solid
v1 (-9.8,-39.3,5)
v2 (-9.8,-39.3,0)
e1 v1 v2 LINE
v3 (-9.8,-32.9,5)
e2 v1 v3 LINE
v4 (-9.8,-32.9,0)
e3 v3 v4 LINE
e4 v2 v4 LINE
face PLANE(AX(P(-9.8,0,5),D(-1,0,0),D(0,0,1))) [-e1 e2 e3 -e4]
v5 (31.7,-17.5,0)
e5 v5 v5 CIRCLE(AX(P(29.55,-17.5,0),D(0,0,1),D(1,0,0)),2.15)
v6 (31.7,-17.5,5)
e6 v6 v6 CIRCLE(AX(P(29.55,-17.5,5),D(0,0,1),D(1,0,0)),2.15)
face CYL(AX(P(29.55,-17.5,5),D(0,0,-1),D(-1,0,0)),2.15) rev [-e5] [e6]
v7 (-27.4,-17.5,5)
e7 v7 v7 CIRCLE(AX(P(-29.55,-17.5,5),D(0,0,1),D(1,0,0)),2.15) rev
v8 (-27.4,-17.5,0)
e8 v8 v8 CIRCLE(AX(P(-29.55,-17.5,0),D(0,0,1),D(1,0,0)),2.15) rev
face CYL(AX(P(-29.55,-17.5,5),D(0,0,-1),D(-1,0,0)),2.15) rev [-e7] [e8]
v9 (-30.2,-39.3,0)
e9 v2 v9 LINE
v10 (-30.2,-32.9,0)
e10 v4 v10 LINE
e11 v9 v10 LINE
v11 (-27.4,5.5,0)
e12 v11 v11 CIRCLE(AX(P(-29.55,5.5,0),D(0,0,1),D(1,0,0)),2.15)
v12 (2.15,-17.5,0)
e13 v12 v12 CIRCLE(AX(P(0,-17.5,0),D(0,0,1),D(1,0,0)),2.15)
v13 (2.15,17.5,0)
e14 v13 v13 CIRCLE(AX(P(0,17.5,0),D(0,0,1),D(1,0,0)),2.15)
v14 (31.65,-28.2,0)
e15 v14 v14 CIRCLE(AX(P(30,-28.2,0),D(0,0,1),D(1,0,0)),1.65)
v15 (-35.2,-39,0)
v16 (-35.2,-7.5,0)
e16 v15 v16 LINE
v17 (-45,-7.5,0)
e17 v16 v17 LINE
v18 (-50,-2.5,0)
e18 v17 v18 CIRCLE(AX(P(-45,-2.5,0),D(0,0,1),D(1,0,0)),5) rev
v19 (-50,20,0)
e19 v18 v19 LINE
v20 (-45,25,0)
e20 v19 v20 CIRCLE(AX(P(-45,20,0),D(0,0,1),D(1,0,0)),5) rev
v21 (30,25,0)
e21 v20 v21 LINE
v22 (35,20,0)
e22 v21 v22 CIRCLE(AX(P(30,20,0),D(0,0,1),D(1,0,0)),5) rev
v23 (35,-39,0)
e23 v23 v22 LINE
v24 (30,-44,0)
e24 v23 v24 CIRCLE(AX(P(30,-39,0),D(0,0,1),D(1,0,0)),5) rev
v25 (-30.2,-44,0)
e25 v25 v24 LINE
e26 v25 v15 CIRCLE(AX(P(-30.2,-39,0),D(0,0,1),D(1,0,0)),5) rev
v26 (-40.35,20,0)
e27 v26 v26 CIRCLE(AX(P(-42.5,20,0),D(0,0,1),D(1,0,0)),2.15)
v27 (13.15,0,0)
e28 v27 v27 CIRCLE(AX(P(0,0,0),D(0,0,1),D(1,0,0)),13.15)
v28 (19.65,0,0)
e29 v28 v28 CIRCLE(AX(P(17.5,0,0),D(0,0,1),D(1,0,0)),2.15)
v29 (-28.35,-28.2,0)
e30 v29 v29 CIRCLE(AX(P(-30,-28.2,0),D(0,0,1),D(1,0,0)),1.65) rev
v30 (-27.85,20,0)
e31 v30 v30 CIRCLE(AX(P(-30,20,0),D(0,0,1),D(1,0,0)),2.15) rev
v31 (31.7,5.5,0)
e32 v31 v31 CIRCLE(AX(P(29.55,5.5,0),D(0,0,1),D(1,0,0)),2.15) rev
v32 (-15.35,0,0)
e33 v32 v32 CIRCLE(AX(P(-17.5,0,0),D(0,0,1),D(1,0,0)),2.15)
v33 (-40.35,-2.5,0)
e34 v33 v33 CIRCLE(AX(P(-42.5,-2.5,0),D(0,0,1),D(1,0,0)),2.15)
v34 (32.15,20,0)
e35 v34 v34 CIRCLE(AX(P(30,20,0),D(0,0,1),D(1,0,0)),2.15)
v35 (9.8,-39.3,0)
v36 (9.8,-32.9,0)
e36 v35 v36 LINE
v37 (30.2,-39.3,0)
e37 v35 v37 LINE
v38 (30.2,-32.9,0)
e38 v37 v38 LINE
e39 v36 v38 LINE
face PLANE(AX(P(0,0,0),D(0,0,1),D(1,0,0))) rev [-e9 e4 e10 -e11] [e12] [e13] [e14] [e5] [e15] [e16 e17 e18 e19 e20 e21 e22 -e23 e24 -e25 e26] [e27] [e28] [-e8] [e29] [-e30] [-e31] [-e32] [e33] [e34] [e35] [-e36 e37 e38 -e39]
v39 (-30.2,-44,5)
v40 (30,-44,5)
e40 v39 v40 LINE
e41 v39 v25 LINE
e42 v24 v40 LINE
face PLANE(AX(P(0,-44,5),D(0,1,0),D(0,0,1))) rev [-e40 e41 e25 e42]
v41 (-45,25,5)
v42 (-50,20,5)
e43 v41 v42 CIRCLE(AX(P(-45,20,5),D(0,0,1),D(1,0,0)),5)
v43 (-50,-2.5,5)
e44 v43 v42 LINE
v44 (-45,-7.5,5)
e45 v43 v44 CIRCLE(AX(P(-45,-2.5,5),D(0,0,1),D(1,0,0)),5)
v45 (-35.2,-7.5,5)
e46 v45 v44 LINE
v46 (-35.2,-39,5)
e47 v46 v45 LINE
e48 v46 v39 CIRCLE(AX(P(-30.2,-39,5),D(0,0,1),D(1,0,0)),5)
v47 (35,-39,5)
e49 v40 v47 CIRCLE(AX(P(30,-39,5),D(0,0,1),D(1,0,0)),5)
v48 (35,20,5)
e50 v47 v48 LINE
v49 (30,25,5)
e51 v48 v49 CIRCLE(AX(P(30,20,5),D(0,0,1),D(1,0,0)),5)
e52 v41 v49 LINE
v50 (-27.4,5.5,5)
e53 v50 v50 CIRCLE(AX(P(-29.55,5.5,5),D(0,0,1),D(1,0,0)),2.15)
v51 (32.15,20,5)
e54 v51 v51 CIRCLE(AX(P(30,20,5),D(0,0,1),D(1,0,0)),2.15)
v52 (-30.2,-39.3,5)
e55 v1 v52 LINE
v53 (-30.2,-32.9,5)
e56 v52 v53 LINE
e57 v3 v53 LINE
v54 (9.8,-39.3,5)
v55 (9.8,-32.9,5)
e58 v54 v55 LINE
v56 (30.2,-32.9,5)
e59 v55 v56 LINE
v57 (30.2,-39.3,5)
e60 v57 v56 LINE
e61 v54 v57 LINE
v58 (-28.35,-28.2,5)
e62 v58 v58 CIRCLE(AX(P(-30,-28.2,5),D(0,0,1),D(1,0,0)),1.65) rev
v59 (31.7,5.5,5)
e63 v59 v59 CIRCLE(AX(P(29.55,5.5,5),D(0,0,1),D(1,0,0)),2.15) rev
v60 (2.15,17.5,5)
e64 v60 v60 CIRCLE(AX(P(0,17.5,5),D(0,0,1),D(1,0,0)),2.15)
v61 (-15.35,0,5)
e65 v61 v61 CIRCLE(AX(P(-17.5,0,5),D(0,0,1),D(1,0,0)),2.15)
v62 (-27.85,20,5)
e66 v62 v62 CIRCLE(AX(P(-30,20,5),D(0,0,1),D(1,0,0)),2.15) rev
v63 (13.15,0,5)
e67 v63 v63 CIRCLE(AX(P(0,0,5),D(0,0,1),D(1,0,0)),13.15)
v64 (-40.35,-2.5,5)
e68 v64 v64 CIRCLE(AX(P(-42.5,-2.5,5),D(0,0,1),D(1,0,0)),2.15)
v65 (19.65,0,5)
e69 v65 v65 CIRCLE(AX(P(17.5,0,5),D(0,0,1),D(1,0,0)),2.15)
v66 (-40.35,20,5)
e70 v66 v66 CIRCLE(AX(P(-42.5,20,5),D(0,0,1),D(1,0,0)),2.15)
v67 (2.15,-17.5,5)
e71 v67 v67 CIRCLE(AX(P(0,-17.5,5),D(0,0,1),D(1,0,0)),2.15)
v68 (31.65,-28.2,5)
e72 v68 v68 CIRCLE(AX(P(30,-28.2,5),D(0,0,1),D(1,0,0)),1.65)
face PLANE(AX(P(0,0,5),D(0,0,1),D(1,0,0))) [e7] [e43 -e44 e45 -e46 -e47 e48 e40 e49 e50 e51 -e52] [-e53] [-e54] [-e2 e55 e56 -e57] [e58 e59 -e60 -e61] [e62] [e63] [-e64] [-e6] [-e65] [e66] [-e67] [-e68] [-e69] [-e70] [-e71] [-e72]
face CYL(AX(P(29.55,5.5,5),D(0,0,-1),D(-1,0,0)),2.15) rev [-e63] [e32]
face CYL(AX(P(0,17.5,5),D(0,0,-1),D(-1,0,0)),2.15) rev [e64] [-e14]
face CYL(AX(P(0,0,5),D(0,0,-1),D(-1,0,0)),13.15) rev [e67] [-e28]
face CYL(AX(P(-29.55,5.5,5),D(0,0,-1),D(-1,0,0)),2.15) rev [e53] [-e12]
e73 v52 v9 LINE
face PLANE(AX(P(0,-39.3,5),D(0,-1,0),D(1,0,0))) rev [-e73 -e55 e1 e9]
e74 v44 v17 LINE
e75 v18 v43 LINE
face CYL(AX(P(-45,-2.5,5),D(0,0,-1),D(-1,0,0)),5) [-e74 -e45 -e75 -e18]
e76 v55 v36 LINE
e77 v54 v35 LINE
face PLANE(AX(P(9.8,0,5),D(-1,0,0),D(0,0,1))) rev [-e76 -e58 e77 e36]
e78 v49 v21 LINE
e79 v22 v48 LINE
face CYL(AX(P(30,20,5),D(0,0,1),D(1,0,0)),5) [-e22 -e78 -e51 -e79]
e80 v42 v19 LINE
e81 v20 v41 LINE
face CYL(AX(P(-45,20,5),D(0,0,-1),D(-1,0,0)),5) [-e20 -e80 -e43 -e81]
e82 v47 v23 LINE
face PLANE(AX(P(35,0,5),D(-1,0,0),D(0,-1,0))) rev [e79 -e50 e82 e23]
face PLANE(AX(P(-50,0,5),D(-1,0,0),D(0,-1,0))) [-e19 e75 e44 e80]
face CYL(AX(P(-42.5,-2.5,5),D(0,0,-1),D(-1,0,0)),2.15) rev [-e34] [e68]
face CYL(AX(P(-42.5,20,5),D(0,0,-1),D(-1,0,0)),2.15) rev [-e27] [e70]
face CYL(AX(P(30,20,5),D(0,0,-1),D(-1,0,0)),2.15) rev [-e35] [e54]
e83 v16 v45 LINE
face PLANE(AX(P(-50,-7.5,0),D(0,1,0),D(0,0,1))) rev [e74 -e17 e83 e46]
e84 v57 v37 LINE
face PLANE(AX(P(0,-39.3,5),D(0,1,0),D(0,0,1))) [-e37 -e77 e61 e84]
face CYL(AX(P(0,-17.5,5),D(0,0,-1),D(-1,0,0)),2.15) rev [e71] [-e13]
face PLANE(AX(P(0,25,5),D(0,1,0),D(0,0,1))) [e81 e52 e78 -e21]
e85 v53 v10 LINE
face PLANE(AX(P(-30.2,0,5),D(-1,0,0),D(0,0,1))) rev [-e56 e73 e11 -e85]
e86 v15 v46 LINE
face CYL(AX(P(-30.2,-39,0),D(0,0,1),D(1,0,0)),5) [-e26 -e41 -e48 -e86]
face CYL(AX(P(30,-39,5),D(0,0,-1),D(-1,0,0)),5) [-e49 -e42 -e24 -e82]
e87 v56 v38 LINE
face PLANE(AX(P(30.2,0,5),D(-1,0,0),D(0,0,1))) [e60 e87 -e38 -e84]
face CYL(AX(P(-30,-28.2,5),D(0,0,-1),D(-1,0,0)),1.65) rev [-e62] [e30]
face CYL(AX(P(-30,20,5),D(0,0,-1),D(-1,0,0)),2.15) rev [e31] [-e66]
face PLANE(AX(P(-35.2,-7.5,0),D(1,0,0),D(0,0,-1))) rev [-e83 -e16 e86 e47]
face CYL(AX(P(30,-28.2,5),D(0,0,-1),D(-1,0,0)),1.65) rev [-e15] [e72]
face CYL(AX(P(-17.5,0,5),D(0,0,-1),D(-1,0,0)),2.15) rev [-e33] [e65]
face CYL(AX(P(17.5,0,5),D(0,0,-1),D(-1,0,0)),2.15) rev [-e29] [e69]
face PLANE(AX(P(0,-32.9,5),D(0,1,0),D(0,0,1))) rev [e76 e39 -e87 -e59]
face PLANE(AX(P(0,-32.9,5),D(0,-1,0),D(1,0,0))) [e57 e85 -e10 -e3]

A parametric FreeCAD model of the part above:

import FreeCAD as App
import Part
import Sketcher
from FreeCAD import Vector
Q = App.Units.Quantity


def edges_at(feature, points):
    """Names of the edges that pass closest to the given points."""
    edges = feature.Shape.Edges
    near = lambda p: min(range(len(edges)), key=lambda i: edges[i].distToShape(Part.Vertex(*p))[0])
    return sorted({f"Edge{near(p) + 1}" for p in points})

doc = App.newDocument("Part")
body = doc.addObject("PartDesign::Body", "Body")

# Sketch on XY plane
sketch1 = doc.addObject("Sketcher::SketchObject", "Sketch")
body.addObject(sketch1)
sketch1.AttachmentSupport = (doc.XY_Plane, [""])
sketch1.MapMode = "FlatFace"
sketch1.addGeometry(Part.LineSegment(Vector(35, -44, 0), Vector(35, 25, 0)), False)
sketch1.addGeometry(Part.LineSegment(Vector(35, 25, 0), Vector(-50, 25, 0)), False)
sketch1.addGeometry(Part.LineSegment(Vector(-50, 25, 0), Vector(-50, -44, 0)), False)
sketch1.addGeometry(Part.LineSegment(Vector(-50, -44, 0), Vector(35, -44, 0)), False)
sketch1.addGeometry(Part.LineSegment(Vector(-9.8, -39.3, 0), Vector(-30.2, -39.3, 0)), False)
sketch1.addGeometry(Part.LineSegment(Vector(-30.2, -39.3, 0), Vector(-30.2, -32.9, 0)), False)
sketch1.addGeometry(Part.LineSegment(Vector(-30.2, -32.9, 0), Vector(-9.8, -32.9, 0)), False)
sketch1.addGeometry(Part.LineSegment(Vector(-9.8, -32.9, 0), Vector(-9.8, -39.3, 0)), False)
sketch1.addGeometry(Part.Circle(Vector(-30, -28.2, 0), Vector(0, 0, 1), 1.6), False)
sketch1.addGeometry(Part.Circle(Vector(-29.6, -17.5, 0), Vector(0, 0, 1), 2.1), False)
sketch1.addGeometry(Part.LineSegment(Vector(30.2, -39.3, 0), Vector(9.8, -39.3, 0)), False)
sketch1.addGeometry(Part.LineSegment(Vector(9.8, -39.3, 0), Vector(9.8, -32.9, 0)), False)
sketch1.addGeometry(Part.LineSegment(Vector(9.8, -32.9, 0), Vector(30.2, -32.9, 0)), False)
sketch1.addGeometry(Part.LineSegment(Vector(30.2, -32.9, 0), Vector(30.2, -39.3, 0)), False)
sketch1.addGeometry(Part.Circle(Vector(30, -28.2, 0), Vector(0, 0, 1), 1.6), False)
sketch1.addGeometry(Part.Circle(Vector(0, -17.5, 0), Vector(0, 0, 1), 2.1), False)
sketch1.addGeometry(Part.Circle(Vector(29.6, -17.5, 0), Vector(0, 0, 1), 2.1), False)
sketch1.addGeometry(Part.Circle(Vector(-29.6, 5.5, 0), Vector(0, 0, 1), 2.1), False)
sketch1.addGeometry(Part.Circle(Vector(-17.5, 0, 0), Vector(0, 0, 1), 2.1), False)
sketch1.addGeometry(Part.Circle(Vector(-30, 20, 0), Vector(0, 0, 1), 2.1), False)
sketch1.addGeometry(Part.Circle(Vector(0, 0, 0), Vector(0, 0, 1), 13.2), False)
sketch1.addGeometry(Part.Circle(Vector(17.5, 0, 0), Vector(0, 0, 1), 2.1), False)
sketch1.addGeometry(Part.Circle(Vector(29.6, 5.5, 0), Vector(0, 0, 1), 2.1), False)
sketch1.addGeometry(Part.Circle(Vector(0, 17.5, 0), Vector(0, 0, 1), 2.1), False)
sketch1.addGeometry(Part.Circle(Vector(30, 20, 0), Vector(0, 0, 1), 2.1), False)
sketch1.addGeometry(Part.Circle(Vector(-42.5, 20, 0), Vector(0, 0, 1), 2.1), False)
sketch1.addGeometry(Part.Circle(Vector(-42.5, -2.5, 0), Vector(0, 0, 1), 2.1), False)
sketch1.addConstraint(Sketcher.Constraint("Coincident", 0, 2, 1, 1))
sketch1.addConstraint(Sketcher.Constraint("Coincident", 1, 2, 2, 1))
sketch1.addConstraint(Sketcher.Constraint("Coincident", 2, 2, 3, 1))
sketch1.addConstraint(Sketcher.Constraint("Coincident", 3, 2, 0, 1))
sketch1.addConstraint(Sketcher.Constraint("Coincident", 4, 2, 5, 1))
sketch1.addConstraint(Sketcher.Constraint("Coincident", 5, 2, 6, 1))
sketch1.addConstraint(Sketcher.Constraint("Coincident", 6, 2, 7, 1))
sketch1.addConstraint(Sketcher.Constraint("Coincident", 7, 2, 4, 1))
sketch1.addConstraint(Sketcher.Constraint("Coincident", 10, 2, 11, 1))
sketch1.addConstraint(Sketcher.Constraint("Coincident", 11, 2, 12, 1))
sketch1.addConstraint(Sketcher.Constraint("Coincident", 12, 2, 13, 1))
sketch1.addConstraint(Sketcher.Constraint("Coincident", 13, 2, 10, 1))
sketch1.addConstraint(Sketcher.Constraint("Vertical", 0))
sketch1.addConstraint(Sketcher.Constraint("Horizontal", 1))
sketch1.addConstraint(Sketcher.Constraint("Vertical", 2))
sketch1.addConstraint(Sketcher.Constraint("Horizontal", 3))
sketch1.addConstraint(Sketcher.Constraint("Horizontal", 4))
sketch1.addConstraint(Sketcher.Constraint("Vertical", 5))
sketch1.addConstraint(Sketcher.Constraint("Horizontal", 6))
sketch1.addConstraint(Sketcher.Constraint("Vertical", 7))
sketch1.addConstraint(Sketcher.Constraint("Horizontal", 10))
sketch1.addConstraint(Sketcher.Constraint("Vertical", 11))
sketch1.addConstraint(Sketcher.Constraint("Horizontal", 12))
sketch1.addConstraint(Sketcher.Constraint("Vertical", 13))
sketch1.addConstraint(Sketcher.Constraint("Coincident", 20, 3, -1, 1))
sketch1.addConstraint(Sketcher.Constraint("Equal", 8, 14))
sketch1.addConstraint(Sketcher.Constraint("Equal", 9, 15))
sketch1.addConstraint(Sketcher.Constraint("Equal", 15, 16))
sketch1.addConstraint(Sketcher.Constraint("Equal", 16, 17))
sketch1.addConstraint(Sketcher.Constraint("Equal", 17, 18))
sketch1.addConstraint(Sketcher.Constraint("Equal", 18, 19))
sketch1.addConstraint(Sketcher.Constraint("Equal", 19, 21))
sketch1.addConstraint(Sketcher.Constraint("Equal", 21, 22))
sketch1.addConstraint(Sketcher.Constraint("Equal", 22, 23))
sketch1.addConstraint(Sketcher.Constraint("Equal", 23, 24))
sketch1.addConstraint(Sketcher.Constraint("Equal", 24, 25))
sketch1.addConstraint(Sketcher.Constraint("Equal", 25, 26))
sketch1.addConstraint(Sketcher.Constraint("Symmetric", 18, 3, 21, 3, -1, 1))
sketch1.addConstraint(Sketcher.Constraint("Symmetric", 15, 3, 23, 3, -1, 1))
sketch1.addConstraint(Sketcher.Constraint("Symmetric", 8, 3, 14, 3, -2))
sketch1.addConstraint(Sketcher.Constraint("Symmetric", 9, 3, 16, 3, -2))
sketch1.addConstraint(Sketcher.Constraint("Symmetric", 17, 3, 22, 3, -2))
sketch1.addConstraint(Sketcher.Constraint("Symmetric", 19, 3, 24, 3, -2))
sketch1.addConstraint(Sketcher.Constraint("Symmetric", 7, 2, 10, 2, -2))
sketch1.addConstraint(Sketcher.Constraint("Symmetric", 5, 2, 12, 2, -2))
sketch1.addConstraint(Sketcher.Constraint("PointOnObject", 15, 3, -2))
sketch1.addConstraint(Sketcher.Constraint("PointOnObject", 18, 3, -1))
sketch1.addConstraint(Sketcher.Constraint("Horizontal", 9, 3, 15, 3))
sketch1.addConstraint(Sketcher.Constraint("Horizontal", 24, 3, 25, 3))
sketch1.addConstraint(Sketcher.Constraint("Vertical", 9, 3, 17, 3))
sketch1.addConstraint(Sketcher.Constraint("Vertical", 8, 3, 19, 3))
sketch1.addConstraint(Sketcher.Constraint("Vertical", 25, 3, 26, 3))
sketch1.addConstraint(Sketcher.Constraint("Diameter", 8, Q("3.3 mm")))
sketch1.addConstraint(Sketcher.Constraint("Diameter", 9, Q("4.3 mm")))
sketch1.addConstraint(Sketcher.Constraint("Diameter", 20, Q("26.3 mm")))
sketch1.addConstraint(Sketcher.Constraint("DistanceX", 1, 2, 1, 1, Q("85 mm")))
sketch1.addConstraint(Sketcher.Constraint("DistanceY", 0, 1, 0, 2, Q("69 mm")))
sketch1.addConstraint(Sketcher.Constraint("DistanceX", 4, 2, 4, 1, Q("20.4 mm")))
sketch1.addConstraint(Sketcher.Constraint("DistanceY", 5, 1, 5, 2, Q("6.4 mm")))
sketch1.addConstraint(Sketcher.Constraint("DistanceX", 8, 3, -1, 1, Q("30 mm")))
sketch1.addConstraint(Sketcher.Constraint("DistanceY", -1, 1, 19, 3, Q("20 mm")))
sketch1.addConstraint(Sketcher.Constraint("DistanceX", -1, 1, 0, 2, Q("35 mm")))
sketch1.addConstraint(Sketcher.Constraint("DistanceY", -1, 1, 0, 2, Q("25 mm")))
sketch1.addConstraint(Sketcher.Constraint("DistanceY", 9, 3, 17, 3, Q("23 mm")))
sketch1.addConstraint(Sketcher.Constraint("DistanceX", 18, 3, 21, 3, Q("35 mm")))
sketch1.addConstraint(Sketcher.Constraint("DistanceY", 17, 3, 23, 3, Q("12 mm")))
sketch1.addConstraint(Sketcher.Constraint("DistanceX", 25, 3, 18, 3, Q("25 mm")))
sketch1.addConstraint(Sketcher.Constraint("DistanceY", 26, 3, 17, 3, Q("8 mm")))
sketch1.addConstraint(Sketcher.Constraint("DistanceY", 8, 3, -1, 1, Q("28.2 mm")))
sketch1.addConstraint(Sketcher.Constraint("DistanceX", 4, 2, -1, 1, Q("30.2 mm")))
sketch1.addConstraint(Sketcher.Constraint("DistanceY", 4, 2, -1, 1, Q("39.3 mm")))
sketch1.addConstraint(Sketcher.Constraint("DistanceX", 9, 3, 16, 3, Q("59.1 mm")))
pad1 = doc.addObject("PartDesign::Pad", "Pad")
body.addObject(pad1)
pad1.Profile = sketch1
pad1.Length = 5

# Sketch on XY plane
sketch2 = doc.addObject("Sketcher::SketchObject", "Sketch001")
body.addObject(sketch2)
sketch2.AttachmentSupport = (doc.XY_Plane, [""])
sketch2.MapMode = "FlatFace"
sketch2.AttachmentOffset = App.Placement(Vector(0, 0, 5), App.Rotation())
sketch2.addGeometry(Part.LineSegment(Vector(-50, -8, 0), Vector(-50, -44, 0)), False)
sketch2.addGeometry(Part.LineSegment(Vector(-50, -44, 0), Vector(-35, -44, 0)), False)
sketch2.addGeometry(Part.LineSegment(Vector(-35, -44, 0), Vector(-35, -8, 0)), False)
sketch2.addGeometry(Part.LineSegment(Vector(-35, -8, 0), Vector(-50, -8, 0)), False)
sketch2.addConstraint(Sketcher.Constraint("Coincident", 0, 2, 1, 1))
sketch2.addConstraint(Sketcher.Constraint("Coincident", 1, 2, 2, 1))
sketch2.addConstraint(Sketcher.Constraint("Coincident", 2, 2, 3, 1))
sketch2.addConstraint(Sketcher.Constraint("Coincident", 3, 2, 0, 1))
sketch2.addConstraint(Sketcher.Constraint("Vertical", 0))
sketch2.addConstraint(Sketcher.Constraint("Horizontal", 1))
sketch2.addConstraint(Sketcher.Constraint("Vertical", 2))
sketch2.addConstraint(Sketcher.Constraint("Horizontal", 3))
sketch2.addConstraint(Sketcher.Constraint("DistanceX", 1, 1, 1, 2, Q("14.8 mm")))
sketch2.addConstraint(Sketcher.Constraint("DistanceY", 0, 2, 0, 1, Q("36.5 mm")))
sketch2.addConstraint(Sketcher.Constraint("DistanceX", 0, 2, -1, 1, Q("50 mm")))
sketch2.addConstraint(Sketcher.Constraint("DistanceY", 0, 2, -1, 1, Q("44 mm")))
pocket1 = doc.addObject("PartDesign::Pocket", "Pocket")
body.addObject(pocket1)
pocket1.Profile = sketch2
pocket1.Type = "ThroughAll"
doc.recompute()

fillet = doc.addObject("PartDesign::Fillet", "Fillet")
body.addObject(fillet)
fillet.Base = (pocket1, edges_at(pocket1, [
    (-50, 25, 2.5),
    (35, 25, 2.5),
    (35, -44, 2.5),
    (-50, -7.5, 2.5),
    (-35.2, -44, 2.5),
]))
fillet.Radius = 5

doc.recompute()
